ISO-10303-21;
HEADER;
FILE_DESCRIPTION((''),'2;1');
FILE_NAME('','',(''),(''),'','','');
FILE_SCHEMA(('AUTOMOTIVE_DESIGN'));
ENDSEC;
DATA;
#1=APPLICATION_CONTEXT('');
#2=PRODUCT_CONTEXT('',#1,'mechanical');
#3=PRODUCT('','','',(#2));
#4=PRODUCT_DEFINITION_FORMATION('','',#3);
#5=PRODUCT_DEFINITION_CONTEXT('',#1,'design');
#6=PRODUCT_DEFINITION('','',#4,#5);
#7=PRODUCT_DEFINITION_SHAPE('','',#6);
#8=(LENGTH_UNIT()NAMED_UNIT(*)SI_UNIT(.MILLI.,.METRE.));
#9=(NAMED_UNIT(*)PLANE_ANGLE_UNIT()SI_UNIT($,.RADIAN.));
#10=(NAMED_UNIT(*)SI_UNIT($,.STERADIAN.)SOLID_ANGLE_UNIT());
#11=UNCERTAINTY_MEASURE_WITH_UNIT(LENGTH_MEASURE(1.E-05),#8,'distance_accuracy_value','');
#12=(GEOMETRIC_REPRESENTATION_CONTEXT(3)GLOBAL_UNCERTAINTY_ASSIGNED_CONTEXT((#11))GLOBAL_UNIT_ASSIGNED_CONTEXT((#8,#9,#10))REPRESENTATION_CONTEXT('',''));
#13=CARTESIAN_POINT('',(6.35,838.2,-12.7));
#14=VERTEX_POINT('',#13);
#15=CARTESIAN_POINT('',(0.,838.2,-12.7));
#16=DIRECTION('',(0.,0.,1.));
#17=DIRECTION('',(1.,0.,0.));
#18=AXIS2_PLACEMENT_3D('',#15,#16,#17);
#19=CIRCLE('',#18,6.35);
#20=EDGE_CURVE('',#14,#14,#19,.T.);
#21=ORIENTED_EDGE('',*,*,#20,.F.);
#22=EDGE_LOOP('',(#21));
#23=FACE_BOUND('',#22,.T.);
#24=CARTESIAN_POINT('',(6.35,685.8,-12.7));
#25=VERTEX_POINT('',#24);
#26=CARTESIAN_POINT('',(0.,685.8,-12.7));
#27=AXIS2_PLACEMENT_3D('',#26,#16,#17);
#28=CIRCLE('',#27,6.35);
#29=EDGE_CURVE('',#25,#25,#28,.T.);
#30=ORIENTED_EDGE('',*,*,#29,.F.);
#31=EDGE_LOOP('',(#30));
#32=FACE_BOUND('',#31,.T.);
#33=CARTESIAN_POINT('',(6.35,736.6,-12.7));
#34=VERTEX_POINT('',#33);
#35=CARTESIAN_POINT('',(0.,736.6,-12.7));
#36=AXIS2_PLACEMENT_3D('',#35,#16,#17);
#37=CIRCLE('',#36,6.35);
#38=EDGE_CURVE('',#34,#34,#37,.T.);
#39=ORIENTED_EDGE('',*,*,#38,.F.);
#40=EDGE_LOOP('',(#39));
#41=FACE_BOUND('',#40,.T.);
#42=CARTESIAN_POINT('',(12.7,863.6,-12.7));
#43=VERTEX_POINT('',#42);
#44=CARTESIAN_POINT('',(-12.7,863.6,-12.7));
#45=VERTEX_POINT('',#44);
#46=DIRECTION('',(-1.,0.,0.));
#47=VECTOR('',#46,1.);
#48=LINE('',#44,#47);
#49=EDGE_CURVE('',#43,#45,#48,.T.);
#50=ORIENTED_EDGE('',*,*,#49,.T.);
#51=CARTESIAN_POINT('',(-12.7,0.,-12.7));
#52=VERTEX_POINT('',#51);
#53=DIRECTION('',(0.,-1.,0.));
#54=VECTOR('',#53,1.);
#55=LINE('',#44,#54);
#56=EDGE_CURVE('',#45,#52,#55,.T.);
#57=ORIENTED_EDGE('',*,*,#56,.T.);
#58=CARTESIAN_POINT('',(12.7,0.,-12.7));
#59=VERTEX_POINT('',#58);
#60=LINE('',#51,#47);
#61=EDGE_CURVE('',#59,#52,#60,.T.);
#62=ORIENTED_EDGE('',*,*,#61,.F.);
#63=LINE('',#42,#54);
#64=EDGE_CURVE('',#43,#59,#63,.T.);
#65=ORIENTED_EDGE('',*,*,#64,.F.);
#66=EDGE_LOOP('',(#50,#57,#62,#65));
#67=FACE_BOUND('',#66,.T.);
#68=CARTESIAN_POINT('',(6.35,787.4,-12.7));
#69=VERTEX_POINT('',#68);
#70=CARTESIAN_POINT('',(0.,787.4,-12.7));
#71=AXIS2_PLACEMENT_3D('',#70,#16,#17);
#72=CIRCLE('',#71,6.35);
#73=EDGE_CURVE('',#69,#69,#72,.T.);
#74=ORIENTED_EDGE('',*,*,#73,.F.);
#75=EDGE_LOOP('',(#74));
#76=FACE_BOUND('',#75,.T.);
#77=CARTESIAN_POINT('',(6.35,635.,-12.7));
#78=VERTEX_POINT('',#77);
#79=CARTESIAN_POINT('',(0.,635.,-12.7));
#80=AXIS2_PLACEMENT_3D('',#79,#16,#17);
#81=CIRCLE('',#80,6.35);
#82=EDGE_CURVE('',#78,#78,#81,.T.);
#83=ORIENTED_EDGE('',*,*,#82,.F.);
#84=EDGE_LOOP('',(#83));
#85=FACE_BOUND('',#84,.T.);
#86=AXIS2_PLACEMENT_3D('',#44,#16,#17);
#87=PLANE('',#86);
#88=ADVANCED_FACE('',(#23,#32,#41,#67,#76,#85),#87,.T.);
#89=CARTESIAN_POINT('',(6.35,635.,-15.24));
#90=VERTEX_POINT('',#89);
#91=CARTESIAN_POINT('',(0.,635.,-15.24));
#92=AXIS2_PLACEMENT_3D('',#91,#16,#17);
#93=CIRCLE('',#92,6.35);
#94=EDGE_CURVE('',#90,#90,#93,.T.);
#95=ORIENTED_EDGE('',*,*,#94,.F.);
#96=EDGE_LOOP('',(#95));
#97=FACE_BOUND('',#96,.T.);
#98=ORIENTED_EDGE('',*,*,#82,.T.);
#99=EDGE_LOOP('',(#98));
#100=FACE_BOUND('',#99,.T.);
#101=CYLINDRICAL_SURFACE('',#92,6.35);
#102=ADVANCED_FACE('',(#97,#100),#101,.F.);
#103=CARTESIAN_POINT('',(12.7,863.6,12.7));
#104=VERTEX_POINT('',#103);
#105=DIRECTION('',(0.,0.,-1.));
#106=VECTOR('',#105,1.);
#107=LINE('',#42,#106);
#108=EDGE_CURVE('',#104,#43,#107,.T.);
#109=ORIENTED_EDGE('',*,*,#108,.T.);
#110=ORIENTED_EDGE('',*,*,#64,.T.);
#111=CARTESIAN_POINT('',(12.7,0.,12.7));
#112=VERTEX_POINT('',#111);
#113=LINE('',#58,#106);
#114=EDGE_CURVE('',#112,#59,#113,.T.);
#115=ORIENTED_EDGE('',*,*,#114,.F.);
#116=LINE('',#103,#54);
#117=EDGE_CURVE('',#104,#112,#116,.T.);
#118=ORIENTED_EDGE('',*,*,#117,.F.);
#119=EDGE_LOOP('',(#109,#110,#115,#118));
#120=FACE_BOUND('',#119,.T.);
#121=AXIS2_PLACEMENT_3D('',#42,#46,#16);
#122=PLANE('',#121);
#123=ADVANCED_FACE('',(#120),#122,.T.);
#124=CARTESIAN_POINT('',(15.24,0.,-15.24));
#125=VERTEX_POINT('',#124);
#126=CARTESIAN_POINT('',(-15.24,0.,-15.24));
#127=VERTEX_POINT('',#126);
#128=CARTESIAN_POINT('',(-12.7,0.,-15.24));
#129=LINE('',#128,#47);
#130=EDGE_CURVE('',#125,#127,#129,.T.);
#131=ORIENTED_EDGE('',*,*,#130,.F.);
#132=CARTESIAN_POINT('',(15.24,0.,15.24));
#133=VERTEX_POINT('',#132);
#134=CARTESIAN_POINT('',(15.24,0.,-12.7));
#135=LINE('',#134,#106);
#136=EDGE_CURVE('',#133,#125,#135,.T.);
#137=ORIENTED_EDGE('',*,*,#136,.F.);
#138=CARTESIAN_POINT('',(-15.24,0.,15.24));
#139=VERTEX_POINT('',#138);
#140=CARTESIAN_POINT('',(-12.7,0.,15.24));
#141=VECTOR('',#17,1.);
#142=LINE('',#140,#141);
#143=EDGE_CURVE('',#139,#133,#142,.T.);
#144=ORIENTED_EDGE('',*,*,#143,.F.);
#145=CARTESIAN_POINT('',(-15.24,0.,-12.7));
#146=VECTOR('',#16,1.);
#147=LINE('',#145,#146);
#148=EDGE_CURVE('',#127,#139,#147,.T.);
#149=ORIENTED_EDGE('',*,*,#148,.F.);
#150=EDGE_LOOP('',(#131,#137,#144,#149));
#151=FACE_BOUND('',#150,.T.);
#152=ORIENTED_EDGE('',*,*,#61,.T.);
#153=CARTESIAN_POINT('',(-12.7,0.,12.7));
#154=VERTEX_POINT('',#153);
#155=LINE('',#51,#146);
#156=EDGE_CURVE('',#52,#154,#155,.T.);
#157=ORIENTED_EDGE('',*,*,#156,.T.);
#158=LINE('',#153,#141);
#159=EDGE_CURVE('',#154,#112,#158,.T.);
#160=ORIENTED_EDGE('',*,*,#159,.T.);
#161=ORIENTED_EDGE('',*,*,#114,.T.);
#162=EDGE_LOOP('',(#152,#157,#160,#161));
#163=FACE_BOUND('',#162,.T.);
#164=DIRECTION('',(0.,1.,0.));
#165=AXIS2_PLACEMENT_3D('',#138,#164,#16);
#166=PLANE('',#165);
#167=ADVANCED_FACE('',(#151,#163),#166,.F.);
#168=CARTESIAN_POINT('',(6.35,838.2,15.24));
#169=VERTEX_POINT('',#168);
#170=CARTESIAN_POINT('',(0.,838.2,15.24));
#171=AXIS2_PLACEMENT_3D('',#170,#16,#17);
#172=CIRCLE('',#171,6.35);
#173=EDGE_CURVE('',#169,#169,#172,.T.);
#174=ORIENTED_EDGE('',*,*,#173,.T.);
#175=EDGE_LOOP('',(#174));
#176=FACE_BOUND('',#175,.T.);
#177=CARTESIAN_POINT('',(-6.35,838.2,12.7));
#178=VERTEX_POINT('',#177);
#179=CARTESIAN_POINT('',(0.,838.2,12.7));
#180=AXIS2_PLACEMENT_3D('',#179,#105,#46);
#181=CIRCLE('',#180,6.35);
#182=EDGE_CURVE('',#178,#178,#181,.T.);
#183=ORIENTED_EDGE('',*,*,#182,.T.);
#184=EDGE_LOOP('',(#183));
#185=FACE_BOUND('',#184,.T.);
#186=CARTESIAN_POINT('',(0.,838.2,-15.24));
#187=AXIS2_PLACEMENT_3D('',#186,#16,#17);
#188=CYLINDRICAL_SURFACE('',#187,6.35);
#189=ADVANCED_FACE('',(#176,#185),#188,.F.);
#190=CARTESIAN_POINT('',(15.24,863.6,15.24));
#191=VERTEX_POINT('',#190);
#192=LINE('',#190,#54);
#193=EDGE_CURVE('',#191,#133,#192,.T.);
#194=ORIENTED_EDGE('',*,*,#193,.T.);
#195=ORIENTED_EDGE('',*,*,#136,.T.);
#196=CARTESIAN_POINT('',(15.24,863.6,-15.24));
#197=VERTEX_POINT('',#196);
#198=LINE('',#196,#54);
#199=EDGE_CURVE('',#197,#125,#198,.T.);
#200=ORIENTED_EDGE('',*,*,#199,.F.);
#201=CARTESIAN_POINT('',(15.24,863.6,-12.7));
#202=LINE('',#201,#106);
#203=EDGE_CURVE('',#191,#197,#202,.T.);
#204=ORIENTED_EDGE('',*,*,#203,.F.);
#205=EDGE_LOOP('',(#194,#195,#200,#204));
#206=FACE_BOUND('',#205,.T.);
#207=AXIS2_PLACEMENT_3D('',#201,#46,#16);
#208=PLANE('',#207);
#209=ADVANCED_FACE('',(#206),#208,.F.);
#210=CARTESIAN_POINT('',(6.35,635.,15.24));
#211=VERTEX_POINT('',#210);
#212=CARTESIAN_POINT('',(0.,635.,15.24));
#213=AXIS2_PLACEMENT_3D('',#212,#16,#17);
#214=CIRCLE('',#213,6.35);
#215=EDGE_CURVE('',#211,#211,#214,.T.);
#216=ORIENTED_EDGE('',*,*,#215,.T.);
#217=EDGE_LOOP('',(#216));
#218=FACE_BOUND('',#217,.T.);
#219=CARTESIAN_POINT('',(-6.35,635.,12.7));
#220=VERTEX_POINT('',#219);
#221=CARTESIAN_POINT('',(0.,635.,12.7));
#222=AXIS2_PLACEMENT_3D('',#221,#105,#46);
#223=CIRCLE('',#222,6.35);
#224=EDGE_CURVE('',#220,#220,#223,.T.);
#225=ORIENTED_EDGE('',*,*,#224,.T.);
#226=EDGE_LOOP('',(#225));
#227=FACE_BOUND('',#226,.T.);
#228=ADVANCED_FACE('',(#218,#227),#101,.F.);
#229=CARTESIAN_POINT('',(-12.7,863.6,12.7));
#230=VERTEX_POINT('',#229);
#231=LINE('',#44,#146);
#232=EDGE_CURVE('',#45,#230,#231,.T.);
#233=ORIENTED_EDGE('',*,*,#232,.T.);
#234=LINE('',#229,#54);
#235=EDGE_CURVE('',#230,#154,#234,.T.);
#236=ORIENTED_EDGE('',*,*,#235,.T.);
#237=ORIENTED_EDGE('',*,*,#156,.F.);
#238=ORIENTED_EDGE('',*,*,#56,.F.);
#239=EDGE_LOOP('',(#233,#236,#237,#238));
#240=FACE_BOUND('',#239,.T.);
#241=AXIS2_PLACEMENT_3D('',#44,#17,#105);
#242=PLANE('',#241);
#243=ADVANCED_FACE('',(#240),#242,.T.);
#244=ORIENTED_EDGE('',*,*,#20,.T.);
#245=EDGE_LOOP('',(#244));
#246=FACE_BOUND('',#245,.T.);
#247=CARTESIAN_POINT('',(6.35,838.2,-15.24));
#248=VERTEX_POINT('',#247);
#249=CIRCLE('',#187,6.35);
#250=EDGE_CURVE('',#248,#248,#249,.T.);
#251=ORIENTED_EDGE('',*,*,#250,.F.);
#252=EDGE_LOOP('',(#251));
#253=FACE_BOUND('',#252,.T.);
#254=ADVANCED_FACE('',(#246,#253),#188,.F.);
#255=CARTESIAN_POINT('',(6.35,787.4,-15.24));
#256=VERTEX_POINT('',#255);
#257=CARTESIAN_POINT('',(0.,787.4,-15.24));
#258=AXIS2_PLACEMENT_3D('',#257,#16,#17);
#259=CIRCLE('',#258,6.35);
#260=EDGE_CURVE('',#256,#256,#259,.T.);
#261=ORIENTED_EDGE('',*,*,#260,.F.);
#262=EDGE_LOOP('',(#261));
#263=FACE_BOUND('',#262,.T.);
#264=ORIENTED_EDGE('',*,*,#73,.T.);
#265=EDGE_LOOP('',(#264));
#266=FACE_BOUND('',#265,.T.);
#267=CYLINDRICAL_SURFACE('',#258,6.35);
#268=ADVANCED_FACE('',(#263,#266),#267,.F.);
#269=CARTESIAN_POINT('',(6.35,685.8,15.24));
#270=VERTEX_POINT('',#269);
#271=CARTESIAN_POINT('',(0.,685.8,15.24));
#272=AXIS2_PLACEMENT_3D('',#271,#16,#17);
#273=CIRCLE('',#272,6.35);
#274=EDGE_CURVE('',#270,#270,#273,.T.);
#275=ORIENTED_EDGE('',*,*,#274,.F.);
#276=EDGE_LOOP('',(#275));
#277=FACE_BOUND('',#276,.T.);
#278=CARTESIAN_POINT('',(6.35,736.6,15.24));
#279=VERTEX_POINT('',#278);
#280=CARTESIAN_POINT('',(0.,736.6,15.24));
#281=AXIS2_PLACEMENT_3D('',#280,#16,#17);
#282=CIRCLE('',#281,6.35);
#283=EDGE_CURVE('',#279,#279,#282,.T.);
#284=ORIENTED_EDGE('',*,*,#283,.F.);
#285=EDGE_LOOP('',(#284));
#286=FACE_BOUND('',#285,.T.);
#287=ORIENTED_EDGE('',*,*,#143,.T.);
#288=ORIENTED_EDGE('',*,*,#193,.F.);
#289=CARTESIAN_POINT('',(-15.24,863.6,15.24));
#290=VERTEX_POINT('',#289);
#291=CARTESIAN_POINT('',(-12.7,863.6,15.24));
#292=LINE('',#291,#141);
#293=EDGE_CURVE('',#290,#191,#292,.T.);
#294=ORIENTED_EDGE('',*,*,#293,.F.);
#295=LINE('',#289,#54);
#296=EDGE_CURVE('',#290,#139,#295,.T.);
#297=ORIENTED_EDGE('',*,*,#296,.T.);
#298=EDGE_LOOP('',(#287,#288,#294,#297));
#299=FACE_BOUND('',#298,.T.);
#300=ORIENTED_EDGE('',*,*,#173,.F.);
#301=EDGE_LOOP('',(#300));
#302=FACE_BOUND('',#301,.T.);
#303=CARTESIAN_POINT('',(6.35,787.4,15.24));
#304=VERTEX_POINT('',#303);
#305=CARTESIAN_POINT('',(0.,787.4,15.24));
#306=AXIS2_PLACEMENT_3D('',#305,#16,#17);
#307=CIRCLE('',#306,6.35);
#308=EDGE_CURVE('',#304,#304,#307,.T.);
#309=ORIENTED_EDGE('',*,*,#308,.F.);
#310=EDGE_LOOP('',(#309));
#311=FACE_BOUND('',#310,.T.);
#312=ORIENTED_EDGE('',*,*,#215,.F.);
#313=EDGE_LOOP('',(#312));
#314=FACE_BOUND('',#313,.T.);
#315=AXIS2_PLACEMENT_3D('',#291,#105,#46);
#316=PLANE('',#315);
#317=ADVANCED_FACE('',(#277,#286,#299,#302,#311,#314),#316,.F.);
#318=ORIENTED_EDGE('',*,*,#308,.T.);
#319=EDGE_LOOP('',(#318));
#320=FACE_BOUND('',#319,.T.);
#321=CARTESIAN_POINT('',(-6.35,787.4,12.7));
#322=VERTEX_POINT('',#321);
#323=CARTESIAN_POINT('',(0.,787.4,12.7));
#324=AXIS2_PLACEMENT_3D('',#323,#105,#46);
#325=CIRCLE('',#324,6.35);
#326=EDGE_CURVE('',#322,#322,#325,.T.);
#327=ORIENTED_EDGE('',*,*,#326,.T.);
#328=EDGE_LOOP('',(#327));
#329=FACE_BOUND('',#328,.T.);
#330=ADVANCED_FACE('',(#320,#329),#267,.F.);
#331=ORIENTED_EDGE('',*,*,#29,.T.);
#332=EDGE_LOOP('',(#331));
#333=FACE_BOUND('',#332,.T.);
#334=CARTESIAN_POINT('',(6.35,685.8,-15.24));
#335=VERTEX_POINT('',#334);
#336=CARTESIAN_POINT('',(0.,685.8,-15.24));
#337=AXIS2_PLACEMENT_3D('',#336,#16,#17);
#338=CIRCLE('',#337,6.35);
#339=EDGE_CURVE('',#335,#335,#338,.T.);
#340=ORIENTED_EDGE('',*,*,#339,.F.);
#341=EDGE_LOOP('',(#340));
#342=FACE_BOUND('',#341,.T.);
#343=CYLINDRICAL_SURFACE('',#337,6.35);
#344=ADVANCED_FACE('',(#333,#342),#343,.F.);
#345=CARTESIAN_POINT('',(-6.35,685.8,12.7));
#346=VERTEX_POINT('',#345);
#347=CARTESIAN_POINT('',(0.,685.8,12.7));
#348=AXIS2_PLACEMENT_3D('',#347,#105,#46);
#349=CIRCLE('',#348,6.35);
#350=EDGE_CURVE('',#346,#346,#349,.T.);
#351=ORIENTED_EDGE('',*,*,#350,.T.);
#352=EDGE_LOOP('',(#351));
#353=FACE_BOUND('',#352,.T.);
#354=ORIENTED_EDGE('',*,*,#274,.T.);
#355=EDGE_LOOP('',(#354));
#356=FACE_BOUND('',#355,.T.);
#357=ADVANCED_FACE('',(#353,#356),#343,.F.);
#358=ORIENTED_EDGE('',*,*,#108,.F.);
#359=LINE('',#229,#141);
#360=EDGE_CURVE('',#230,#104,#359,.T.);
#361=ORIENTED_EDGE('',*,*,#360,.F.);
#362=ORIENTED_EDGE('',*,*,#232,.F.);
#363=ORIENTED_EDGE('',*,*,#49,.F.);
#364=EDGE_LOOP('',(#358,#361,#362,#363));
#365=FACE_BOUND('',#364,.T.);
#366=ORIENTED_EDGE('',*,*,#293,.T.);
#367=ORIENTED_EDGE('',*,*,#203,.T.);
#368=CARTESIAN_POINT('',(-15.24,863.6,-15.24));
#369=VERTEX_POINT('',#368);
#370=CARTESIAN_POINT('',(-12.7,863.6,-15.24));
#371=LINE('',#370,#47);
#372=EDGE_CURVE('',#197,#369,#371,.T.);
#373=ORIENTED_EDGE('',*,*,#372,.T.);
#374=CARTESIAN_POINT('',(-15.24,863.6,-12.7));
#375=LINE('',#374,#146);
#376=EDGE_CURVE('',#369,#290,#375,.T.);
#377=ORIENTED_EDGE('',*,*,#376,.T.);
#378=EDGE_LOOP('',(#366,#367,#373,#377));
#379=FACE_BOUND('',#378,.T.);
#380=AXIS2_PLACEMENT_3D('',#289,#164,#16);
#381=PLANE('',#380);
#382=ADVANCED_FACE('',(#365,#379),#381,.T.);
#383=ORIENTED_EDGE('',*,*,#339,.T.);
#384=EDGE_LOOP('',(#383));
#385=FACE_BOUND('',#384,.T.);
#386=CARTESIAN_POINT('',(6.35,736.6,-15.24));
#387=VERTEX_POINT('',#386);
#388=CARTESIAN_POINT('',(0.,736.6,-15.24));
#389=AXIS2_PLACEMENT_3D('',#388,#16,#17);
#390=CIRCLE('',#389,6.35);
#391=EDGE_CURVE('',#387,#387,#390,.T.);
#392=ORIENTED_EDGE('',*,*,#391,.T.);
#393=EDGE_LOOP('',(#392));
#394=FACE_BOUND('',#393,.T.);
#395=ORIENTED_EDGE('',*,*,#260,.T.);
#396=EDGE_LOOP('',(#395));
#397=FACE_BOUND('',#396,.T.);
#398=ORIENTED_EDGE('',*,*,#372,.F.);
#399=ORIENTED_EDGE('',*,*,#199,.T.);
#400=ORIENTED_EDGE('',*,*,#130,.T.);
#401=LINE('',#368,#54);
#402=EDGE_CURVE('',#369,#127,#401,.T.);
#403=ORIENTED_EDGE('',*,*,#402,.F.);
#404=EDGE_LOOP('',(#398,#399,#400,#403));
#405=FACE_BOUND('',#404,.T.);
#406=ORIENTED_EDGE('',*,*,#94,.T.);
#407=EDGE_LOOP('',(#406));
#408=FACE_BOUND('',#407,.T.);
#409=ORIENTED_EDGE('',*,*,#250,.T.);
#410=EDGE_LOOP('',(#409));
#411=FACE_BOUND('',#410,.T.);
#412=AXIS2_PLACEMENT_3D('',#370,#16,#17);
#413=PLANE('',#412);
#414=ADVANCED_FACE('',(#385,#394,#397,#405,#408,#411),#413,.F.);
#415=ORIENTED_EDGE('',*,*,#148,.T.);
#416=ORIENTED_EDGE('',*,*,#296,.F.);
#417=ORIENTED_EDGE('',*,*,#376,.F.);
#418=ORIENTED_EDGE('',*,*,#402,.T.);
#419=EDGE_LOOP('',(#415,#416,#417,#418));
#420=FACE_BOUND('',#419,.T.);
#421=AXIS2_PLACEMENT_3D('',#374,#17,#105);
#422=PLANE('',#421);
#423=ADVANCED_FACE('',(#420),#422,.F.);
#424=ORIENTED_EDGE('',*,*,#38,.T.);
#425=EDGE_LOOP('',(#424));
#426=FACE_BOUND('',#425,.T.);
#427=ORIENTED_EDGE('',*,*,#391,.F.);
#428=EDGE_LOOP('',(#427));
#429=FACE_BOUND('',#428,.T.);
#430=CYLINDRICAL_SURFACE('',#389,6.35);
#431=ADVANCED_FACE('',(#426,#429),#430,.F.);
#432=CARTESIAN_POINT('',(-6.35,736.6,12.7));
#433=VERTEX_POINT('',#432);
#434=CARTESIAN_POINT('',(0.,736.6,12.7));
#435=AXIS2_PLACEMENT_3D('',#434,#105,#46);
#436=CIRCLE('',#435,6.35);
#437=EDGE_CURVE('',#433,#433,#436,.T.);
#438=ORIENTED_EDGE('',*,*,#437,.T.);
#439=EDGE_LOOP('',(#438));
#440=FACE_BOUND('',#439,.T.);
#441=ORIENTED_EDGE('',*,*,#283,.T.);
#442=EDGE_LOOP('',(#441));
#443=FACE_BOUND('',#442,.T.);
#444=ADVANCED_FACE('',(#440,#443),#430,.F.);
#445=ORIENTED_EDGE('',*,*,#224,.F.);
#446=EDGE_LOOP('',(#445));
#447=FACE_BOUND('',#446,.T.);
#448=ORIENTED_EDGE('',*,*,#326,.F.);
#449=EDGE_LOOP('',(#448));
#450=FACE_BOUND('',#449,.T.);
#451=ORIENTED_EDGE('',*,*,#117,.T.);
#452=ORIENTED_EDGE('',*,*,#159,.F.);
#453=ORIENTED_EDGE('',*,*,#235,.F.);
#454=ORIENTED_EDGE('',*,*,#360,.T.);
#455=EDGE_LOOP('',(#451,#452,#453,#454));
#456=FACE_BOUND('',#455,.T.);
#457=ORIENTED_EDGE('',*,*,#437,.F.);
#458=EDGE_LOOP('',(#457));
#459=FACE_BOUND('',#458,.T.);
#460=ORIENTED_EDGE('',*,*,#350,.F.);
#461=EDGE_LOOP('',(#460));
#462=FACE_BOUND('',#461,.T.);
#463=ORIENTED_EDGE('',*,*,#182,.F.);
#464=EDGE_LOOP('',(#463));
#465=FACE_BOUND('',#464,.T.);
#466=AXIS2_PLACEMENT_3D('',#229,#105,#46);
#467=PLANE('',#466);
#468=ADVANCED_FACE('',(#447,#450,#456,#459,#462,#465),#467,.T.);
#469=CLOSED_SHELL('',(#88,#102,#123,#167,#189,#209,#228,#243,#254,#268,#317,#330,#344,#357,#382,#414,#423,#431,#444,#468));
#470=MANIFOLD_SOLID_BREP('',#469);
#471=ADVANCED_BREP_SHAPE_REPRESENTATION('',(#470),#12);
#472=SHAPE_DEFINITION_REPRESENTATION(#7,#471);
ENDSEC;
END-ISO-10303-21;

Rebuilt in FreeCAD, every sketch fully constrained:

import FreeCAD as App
import Part
import Sketcher
Q = App.Units.Quantity

doc = App.newDocument("Part")
params = doc.addObject("Spreadsheet::Sheet", "Params")
for row, (alias, value) in enumerate([
    ("sketch1_width", "1 in"),
    ("sketch1_width2", "1.2 in"),
    ("pad1_length", "34 in"),
    ("sketch2_diameter", "0.5 in"),
    ("linearpattern_pitch", "2 in"),
], start=1):
    params.set(f"A{row}", alias)
    params.set(f"B{row}", "=" + value)
    params.setAlias(f"B{row}", alias)

body = doc.addObject("PartDesign::Body", "Body")

sketch1 = body.newObject("Sketcher::SketchObject", "Sketch")
sketch1.AttachmentSupport = (doc.getObject("XZ_Plane"), [""])
sketch1.MapMode = "FlatFace"
sketch1.addGeometry([
    Part.LineSegment(App.Vector(-15, -15, 0), App.Vector(-15, 15, 0)),
    Part.LineSegment(App.Vector(-15, 15, 0), App.Vector(15, 15, 0)),
    Part.LineSegment(App.Vector(15, 15, 0), App.Vector(15, -15, 0)),
    Part.LineSegment(App.Vector(15, -15, 0), App.Vector(-15, -15, 0)),
    Part.LineSegment(App.Vector(13, 13, 0), App.Vector(-13, 13, 0)),
    Part.LineSegment(App.Vector(-13, 13, 0), App.Vector(-13, -13, 0)),
    Part.LineSegment(App.Vector(-13, -13, 0), App.Vector(13, -13, 0)),
    Part.LineSegment(App.Vector(13, -13, 0), App.Vector(13, 13, 0)),
], False)
sketch1.addConstraint([
    Sketcher.Constraint("Coincident", 0, 2, 1, 1),
    Sketcher.Constraint("Coincident", 1, 2, 2, 1),
    Sketcher.Constraint("Coincident", 2, 2, 3, 1),
    Sketcher.Constraint("Coincident", 3, 2, 0, 1),
    Sketcher.Constraint("Coincident", 4, 2, 5, 1),
    Sketcher.Constraint("Coincident", 5, 2, 6, 1),
    Sketcher.Constraint("Coincident", 6, 2, 7, 1),
    Sketcher.Constraint("Coincident", 7, 2, 4, 1),
    Sketcher.Constraint("Vertical", 0),
    Sketcher.Constraint("Horizontal", 1),
    Sketcher.Constraint("Vertical", 2),
    Sketcher.Constraint("Horizontal", 3),
    Sketcher.Constraint("Horizontal", 4),
    Sketcher.Constraint("Vertical", 5),
    Sketcher.Constraint("Horizontal", 6),
    Sketcher.Constraint("Vertical", 7),
    Sketcher.Constraint("Symmetric", 0, 2, 2, 2, -1, 1),
    Sketcher.Constraint("Symmetric", 4, 2, 6, 2, -1, 1),
    Sketcher.Constraint("Equal", 3, 0),
    Sketcher.Constraint("Equal", 6, 5),
    Sketcher.Constraint("DistanceX", 4, 2, 4, 1, Q("1 in")),
    Sketcher.Constraint("DistanceX", 1, 1, 1, 2, Q("1.2 in")),
])
sketch1.setExpression("Constraints[20]", "Params.sketch1_width")
sketch1.setExpression("Constraints[21]", "Params.sketch1_width2")
pad1 = body.newObject("PartDesign::Pad", "Pad")
pad1.Profile = sketch1
pad1.setExpression("Length", "Params.pad1_length")
pad1.Reversed = True

sketch2 = body.newObject("Sketcher::SketchObject", "Sketch001")
sketch2.AttachmentSupport = (doc.getObject("XY_Plane"), [""])
sketch2.MapMode = "FlatFace"
sketch2.AttachmentOffset = App.Placement(App.Vector(0, 0, 0.6 * 25.4), App.Rotation())
sketch2.addGeometry(Part.Circle(App.Vector(0, 838, 0), App.Vector(0, 0, 1), 6), False)
sketch2.addConstraint([
    Sketcher.Constraint("PointOnObject", 0, 3, -2),
    Sketcher.Constraint("Diameter", 0, Q("0.5 in")),
    Sketcher.Constraint("DistanceY", -1, 1, 0, 3, Q("33 in")),
])
sketch2.setExpression("Constraints[1]", "Params.sketch2_diameter")
pocket1 = body.newObject("PartDesign::Pocket", "Pocket")
pocket1.Profile = sketch2
pocket1.Type = "ThroughAll"
doc.recompute()

linearpattern = body.newObject("PartDesign::LinearPattern", "LinearPattern")
linearpattern.Originals = [pocket1]
linearpattern.Direction = (doc.getObject("Y_Axis"), [""])
linearpattern.Mode = "offset"
linearpattern.setExpression("Offset", "Params.linearpattern_pitch")
linearpattern.Occurrences = 5
linearpattern.Reversed = True
body.Tip = linearpattern

doc.recompute()
